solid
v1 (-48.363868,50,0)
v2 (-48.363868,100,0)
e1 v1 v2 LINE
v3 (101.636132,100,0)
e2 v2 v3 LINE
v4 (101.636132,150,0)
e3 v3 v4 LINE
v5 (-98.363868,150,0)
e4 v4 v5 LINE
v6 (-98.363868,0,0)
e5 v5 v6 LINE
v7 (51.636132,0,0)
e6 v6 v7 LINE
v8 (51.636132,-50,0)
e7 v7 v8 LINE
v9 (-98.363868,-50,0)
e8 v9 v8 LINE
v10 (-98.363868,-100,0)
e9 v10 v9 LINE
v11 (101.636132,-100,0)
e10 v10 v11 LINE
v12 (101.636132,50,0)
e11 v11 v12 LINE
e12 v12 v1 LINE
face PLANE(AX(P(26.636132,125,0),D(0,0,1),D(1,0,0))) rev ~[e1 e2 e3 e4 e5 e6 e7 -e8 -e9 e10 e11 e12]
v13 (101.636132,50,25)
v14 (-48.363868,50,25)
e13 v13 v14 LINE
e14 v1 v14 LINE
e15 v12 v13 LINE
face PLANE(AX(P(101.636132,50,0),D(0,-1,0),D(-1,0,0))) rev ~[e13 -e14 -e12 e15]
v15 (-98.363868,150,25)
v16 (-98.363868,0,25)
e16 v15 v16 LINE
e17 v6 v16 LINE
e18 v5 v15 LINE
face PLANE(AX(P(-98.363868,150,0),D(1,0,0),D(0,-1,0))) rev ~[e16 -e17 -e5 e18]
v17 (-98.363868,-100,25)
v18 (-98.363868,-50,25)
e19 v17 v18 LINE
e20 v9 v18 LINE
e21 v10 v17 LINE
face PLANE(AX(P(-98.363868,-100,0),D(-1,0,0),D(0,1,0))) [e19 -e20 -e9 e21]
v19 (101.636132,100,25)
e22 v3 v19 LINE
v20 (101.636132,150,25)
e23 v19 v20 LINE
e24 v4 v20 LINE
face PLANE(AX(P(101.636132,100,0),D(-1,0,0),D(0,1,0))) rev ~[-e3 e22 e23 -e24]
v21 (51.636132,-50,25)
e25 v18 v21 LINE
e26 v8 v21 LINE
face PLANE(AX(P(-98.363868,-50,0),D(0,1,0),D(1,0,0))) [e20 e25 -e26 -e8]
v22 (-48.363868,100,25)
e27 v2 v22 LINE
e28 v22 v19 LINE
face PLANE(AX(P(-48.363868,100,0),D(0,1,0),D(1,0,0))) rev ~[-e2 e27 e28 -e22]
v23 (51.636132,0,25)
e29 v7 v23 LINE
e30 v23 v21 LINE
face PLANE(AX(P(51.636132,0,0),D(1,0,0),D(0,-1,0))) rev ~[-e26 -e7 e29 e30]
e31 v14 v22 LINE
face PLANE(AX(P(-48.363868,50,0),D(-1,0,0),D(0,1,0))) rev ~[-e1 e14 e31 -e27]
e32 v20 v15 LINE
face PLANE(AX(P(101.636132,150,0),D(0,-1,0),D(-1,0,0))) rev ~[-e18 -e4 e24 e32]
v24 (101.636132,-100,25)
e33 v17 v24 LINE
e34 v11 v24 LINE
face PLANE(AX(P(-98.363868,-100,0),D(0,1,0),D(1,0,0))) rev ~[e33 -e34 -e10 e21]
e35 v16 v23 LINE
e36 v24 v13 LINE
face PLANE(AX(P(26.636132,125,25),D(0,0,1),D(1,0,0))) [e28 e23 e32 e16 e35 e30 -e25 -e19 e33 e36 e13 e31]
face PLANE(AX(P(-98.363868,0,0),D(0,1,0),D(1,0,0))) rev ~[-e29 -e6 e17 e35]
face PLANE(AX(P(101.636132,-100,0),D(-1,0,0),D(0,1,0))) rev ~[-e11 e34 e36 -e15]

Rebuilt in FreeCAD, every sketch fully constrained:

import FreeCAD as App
import Part
import Sketcher

V = App.Vector
Q = App.Units.Quantity


def add_polygon(sketch, points):
    """Adds a closed chain of lines whose ends are joined by coincident constraints."""
    first, n = sketch.GeometryCount, len(points)
    for a, b in zip(points, points[1:] + points[:1]):
        sketch.addGeometry(Part.LineSegment(App.Vector(*a, 0), App.Vector(*b, 0)), False)
    for i in range(n):
        sketch.addConstraint(Sketcher.Constraint("Coincident", first + i, 2, first + (i + 1) % n, 1))

doc = App.newDocument("Part")
body = doc.addObject("PartDesign::Body", "Body")

sketch1 = body.newObject("Sketcher::SketchObject", "Sketch")
sketch1.AttachmentSupport = (doc.getObject("XY_Plane"), [""])
sketch1.MapMode = "FlatFace"
add_polygon(sketch1, [(102, 100), (102, 150), (-98, 150), (-98, 0), (52, 0), (52, -50), (-98, -50), (-98, -100), (102, -100), (102, 50), (-48, 50), (-48, 100)])
sketch1.addConstraint([
    Sketcher.Constraint("Vertical", 0),
    Sketcher.Constraint("Horizontal", 1),
    Sketcher.Constraint("Vertical", 2),
    Sketcher.Constraint("Horizontal", 3),
    Sketcher.Constraint("Vertical", 4),
    Sketcher.Constraint("Horizontal", 5),
    Sketcher.Constraint("Vertical", 6),
    Sketcher.Constraint("Horizontal", 7),
    Sketcher.Constraint("Vertical", 8),
    Sketcher.Constraint("Horizontal", 9),
    Sketcher.Constraint("Vertical", 10),
    Sketcher.Constraint("Horizontal", 11),
    Sketcher.Constraint("Symmetric", 7, 2, 11, 2, -1),
    Sketcher.Constraint("PointOnObject", 2, 2, -1),
    Sketcher.Constraint("Vertical", 2, 2, 5, 2),
    Sketcher.Constraint("Equal", 5, 9),
    Sketcher.Constraint("Equal", 11, 2),
    Sketcher.Constraint("Equal", 0, 4),
    Sketcher.Constraint("Equal", 4, 6),
    Sketcher.Constraint("Equal", 2, 8),
    Sketcher.Constraint("DistanceX", 1, 2, 1, 1, Q("200 mm")),
    Sketcher.Constraint("DistanceX", 3, 1, 3, 2, Q("150 mm")),
    Sketcher.Constraint("DistanceX", -1, 1, 0, 2, Q("101.636132 mm")),
])
pad1 = body.newObject("PartDesign::Pad", "Pad")
pad1.Profile = sketch1
pad1.Length = 25

doc.recompute()
